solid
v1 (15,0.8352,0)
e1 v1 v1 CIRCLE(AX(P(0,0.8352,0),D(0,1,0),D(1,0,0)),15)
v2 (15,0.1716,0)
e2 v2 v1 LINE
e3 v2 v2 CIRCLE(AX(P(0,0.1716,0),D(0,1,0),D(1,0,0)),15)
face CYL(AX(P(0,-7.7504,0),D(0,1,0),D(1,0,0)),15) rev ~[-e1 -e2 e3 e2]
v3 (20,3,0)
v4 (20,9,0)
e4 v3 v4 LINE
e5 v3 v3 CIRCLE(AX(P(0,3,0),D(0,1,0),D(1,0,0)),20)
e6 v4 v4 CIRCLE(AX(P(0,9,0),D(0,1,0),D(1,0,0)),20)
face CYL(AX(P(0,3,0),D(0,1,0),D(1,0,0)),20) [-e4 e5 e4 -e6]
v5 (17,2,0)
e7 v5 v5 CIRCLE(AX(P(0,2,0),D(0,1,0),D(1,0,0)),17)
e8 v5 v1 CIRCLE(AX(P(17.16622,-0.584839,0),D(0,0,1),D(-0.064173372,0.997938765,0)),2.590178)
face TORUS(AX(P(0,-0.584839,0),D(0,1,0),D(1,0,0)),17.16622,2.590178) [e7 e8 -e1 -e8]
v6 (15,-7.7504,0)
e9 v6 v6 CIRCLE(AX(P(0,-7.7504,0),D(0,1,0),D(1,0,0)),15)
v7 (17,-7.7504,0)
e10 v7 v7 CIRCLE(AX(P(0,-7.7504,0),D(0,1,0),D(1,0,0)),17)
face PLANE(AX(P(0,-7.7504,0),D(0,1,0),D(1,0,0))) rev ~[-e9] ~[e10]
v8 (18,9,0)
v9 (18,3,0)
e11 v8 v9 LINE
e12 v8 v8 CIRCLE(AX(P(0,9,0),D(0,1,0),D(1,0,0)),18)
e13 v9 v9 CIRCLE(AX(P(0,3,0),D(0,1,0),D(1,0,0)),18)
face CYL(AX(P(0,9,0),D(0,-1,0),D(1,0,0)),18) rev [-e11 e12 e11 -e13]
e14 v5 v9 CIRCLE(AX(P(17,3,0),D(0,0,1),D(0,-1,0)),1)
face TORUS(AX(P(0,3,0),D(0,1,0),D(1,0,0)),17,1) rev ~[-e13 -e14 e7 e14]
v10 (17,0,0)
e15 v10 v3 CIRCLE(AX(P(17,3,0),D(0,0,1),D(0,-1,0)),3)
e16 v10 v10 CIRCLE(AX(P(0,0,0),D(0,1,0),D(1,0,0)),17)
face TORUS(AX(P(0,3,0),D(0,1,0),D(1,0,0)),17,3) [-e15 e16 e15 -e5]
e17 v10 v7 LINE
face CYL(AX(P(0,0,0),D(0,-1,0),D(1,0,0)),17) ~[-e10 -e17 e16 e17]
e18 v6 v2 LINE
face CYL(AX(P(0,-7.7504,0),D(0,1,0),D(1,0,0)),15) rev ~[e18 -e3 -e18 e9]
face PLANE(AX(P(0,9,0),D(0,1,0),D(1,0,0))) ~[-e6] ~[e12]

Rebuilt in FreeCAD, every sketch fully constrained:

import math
import FreeCAD as App
import Part
import Sketcher

V = App.Vector
Q = App.Units.Quantity

doc = App.newDocument("Part")
params = doc.addObject("Spreadsheet::Sheet", "Params")
for row, (alias, value) in enumerate([
    ("sketch1_radius", "3 mm"),
    ("sketch1_radius2", "1 mm"),
    ("revolution_angle", "360 deg"),
], start=1):
    params.set(f"A{row}", alias)
    params.set(f"B{row}", "=" + value)
    params.setAlias(f"B{row}", alias)

body = doc.addObject("PartDesign::Body", "Body")

# Sketch on XY plane
sketch1 = body.newObject("Sketcher::SketchObject", "Sketch")
sketch1.AttachmentSupport = (doc.getObject("XY_Plane"), [""])
sketch1.MapMode = "FlatFace"
sketch1.addGeometry([
    Part.ArcOfCircle(Part.Circle(V(17, 3, 0), V(0, 0, 1), 3), math.radians(-90), math.radians(0)),  # 0
    Part.LineSegment(V(20, 3, 0), V(20, 9, 0)),  # 1
    Part.LineSegment(V(20, 9, 0), V(18, 9, 0)),  # 2
    Part.LineSegment(V(18, 9, 0), V(18, 3, 0)),  # 3
    Part.ArcOfCircle(Part.Circle(V(17, 3, 0), V(0, 0, 1), 1), math.radians(-90), math.radians(0)),  # 4
    Part.ArcOfCircle(Part.Circle(V(17.1663, -0.5851, 0), V(0, 0, 1), 2.590444), math.radians(93.680777), math.radians(146.749788)),  # 5
    Part.LineSegment(V(15, 0.8352, 0), V(15, -7.7504, 0)),  # 6
    Part.LineSegment(V(15, -7.7504, 0), V(17, -7.7504, 0)),  # 7
    Part.LineSegment(V(17, -7.7504, 0), V(17, 0, 0)),  # 8
], False)
sketch1.addConstraint([
    Sketcher.Constraint("Tangent", 0, 2, 1, 1),
    Sketcher.Constraint("Coincident", 1, 2, 2, 1),
    Sketcher.Constraint("Coincident", 2, 2, 3, 1),
    Sketcher.Constraint("Tangent", 3, 2, 4, 2),
    Sketcher.Constraint("Coincident", 4, 1, 5, 1),
    Sketcher.Constraint("Coincident", 5, 2, 6, 1),
    Sketcher.Constraint("Coincident", 6, 2, 7, 1),
    Sketcher.Constraint("Coincident", 7, 2, 8, 1),
    Sketcher.Constraint("Coincident", 8, 2, 0, 1),
    Sketcher.Constraint("Vertical", 1),
    Sketcher.Constraint("Horizontal", 2),
    Sketcher.Constraint("Vertical", 3),
    Sketcher.Constraint("Vertical", 6),
    Sketcher.Constraint("Horizontal", 7),
    Sketcher.Constraint("Vertical", 8),
    Sketcher.Constraint("Coincident", 4, 3, 0, 3),
    Sketcher.Constraint("PointOnObject", 8, 2, -1),
    Sketcher.Constraint("Vertical", 0, 3, 4, 1),
    Sketcher.Constraint("Vertical", 4, 1, 7, 2),
    Sketcher.Constraint("Equal", 2, 7),
    Sketcher.Constraint("Radius", 0, Q("3 mm")),
    Sketcher.Constraint("Radius", 4, Q("1 mm")),
    Sketcher.Constraint("DistanceX", -1, 1, 0, 3, Q("17 mm")),
    Sketcher.Constraint("DistanceY", -1, 1, 1, 2, Q("9 mm")),
    Sketcher.Constraint("Radius", 5, Q("2.5904 mm")),
    Sketcher.Constraint("DistanceY", 6, 2, 6, 1, Q("8.5856 mm")),
    Sketcher.Constraint("DistanceY", 8, 1, 8, 2, Q("7.7504 mm")),
])
sketch1.setExpression("Constraints[20]", "Params.sketch1_radius")
sketch1.setExpression("Constraints[21]", "Params.sketch1_radius2")
revolution = body.newObject("PartDesign::Revolution", "Revolution")
revolution.Profile = sketch1
revolution.ReferenceAxis = (sketch1, ["V_Axis"])
revolution.setExpression("Angle", "Params.revolution_angle")

doc.recompute()
